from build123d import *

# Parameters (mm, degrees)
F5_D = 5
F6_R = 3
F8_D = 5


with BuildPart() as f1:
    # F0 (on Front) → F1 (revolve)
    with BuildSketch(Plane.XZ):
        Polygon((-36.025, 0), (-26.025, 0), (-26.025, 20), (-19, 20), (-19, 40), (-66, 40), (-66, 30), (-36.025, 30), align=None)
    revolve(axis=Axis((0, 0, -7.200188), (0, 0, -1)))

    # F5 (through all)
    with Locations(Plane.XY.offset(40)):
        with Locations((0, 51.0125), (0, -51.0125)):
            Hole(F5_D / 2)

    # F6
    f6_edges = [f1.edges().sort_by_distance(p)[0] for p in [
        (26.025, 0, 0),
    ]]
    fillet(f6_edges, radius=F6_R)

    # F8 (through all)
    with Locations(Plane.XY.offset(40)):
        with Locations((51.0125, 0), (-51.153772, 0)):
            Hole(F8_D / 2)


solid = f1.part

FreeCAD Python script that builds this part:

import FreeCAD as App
import Part
import Sketcher
from FreeCAD import Vector


def edges_at(feature, points):
    """Names of the edges that pass closest to the given points."""
    edges = feature.Shape.Edges
    near = lambda p: min(range(len(edges)), key=lambda i: edges[i].distToShape(Part.Vertex(*p))[0])
    return sorted({f"Edge{near(p) + 1}" for p in points})


def add_polygon(sketch, points):
    """Adds a closed chain of lines whose ends are joined by coincident constraints."""
    first, n = sketch.GeometryCount, len(points)
    for a, b in zip(points, points[1:] + points[:1]):
        sketch.addGeometry(Part.LineSegment(App.Vector(*a, 0), App.Vector(*b, 0)), False)
    for i in range(n):
        sketch.addConstraint(Sketcher.Constraint("Coincident", first + i, 2, first + (i + 1) % n, 1))

doc = App.newDocument("Part")
body = doc.addObject("PartDesign::Body", "Body")

# Sketch on XZ plane
sketch1 = body.newObject("Sketcher::SketchObject", "Sketch")
sketch1.AttachmentSupport = (doc.getObject("XZ_Plane"), [""])
sketch1.MapMode = "FlatFace"
add_polygon(sketch1, [(-36, 0), (-26, 0), (-26, 20), (-19, 20), (-19, 40), (-66, 40), (-66, 30), (-36, 30)])  # lines 0-7
sketch1.addConstraint(Sketcher.Constraint("Horizontal", 0))
sketch1.addConstraint(Sketcher.Constraint("Vertical", 1))
sketch1.addConstraint(Sketcher.Constraint("Horizontal", 2))
sketch1.addConstraint(Sketcher.Constraint("Vertical", 3))
sketch1.addConstraint(Sketcher.Constraint("Horizontal", 4))
sketch1.addConstraint(Sketcher.Constraint("Vertical", 5))
sketch1.addConstraint(Sketcher.Constraint("Horizontal", 6))
sketch1.addConstraint(Sketcher.Constraint("Vertical", 7))
sketch1.addConstraint(Sketcher.Constraint("PointOnObject", 0, 2, -1))
sketch1.addConstraint(Sketcher.Constraint("Equal", 1, 3))
sketch1.addConstraint(Sketcher.Constraint("Equal", 0, 5))
sketch1.addConstraint(Sketcher.Constraint("DistanceX", 0, 1, 0, 2, 10.0))
sketch1.addConstraint(Sketcher.Constraint("DistanceX", 4, 2, 4, 1, 47.0))
sketch1.addConstraint(Sketcher.Constraint("DistanceY", 1, 1, 1, 2, 20.0))
sketch1.addConstraint(Sketcher.Constraint("DistanceX", 2, 2, -1, 1, 19.0))
sketch1.addConstraint(Sketcher.Constraint("DistanceX", 2, 1, 2, 2, 7.025))
revolution = body.newObject("PartDesign::Revolution", "Revolution")
revolution.Profile = sketch1
revolution.ReferenceAxis = (sketch1, ["V_Axis"])
revolution.Angle = 360

# Sketch on XY plane
sketch2 = body.newObject("Sketcher::SketchObject", "Sketch001")
sketch2.AttachmentSupport = (doc.getObject("XY_Plane"), [""])
sketch2.MapMode = "FlatFace"
sketch2.AttachmentOffset = App.Placement(Vector(0, 0, 40), App.Rotation())
sketch2.addGeometry(Part.Circle(Vector(0, 51, 0), Vector(0, 0, 1), 2.5), False)
sketch2.addGeometry(Part.Circle(Vector(0, -51, 0), Vector(0, 0, 1), 2.5), False)
sketch2.addConstraint(Sketcher.Constraint("Equal", 0, 1))
sketch2.addConstraint(Sketcher.Constraint("Symmetric", 0, 3, 1, 3, -1, 1))
sketch2.addConstraint(Sketcher.Constraint("PointOnObject", 0, 3, -2))
sketch2.addConstraint(Sketcher.Constraint("Diameter", 0, 5.0))
sketch2.addConstraint(Sketcher.Constraint("DistanceY", 1, 3, 0, 3, 102.025))
doc.recompute()
hole = body.newObject("PartDesign::Hole", "Hole")
hole.Profile = sketch2
hole.ThreadType = "None"
hole.Diameter = 5
hole.DepthType = "ThroughAll"
doc.recompute()

fillet = body.newObject("PartDesign::Fillet", "Fillet")
fillet.Base = (hole, edges_at(hole, [(26.025, 0, 0)]))
fillet.Radius = 3

# Sketch on XY plane
sketch3 = body.newObject("Sketcher::SketchObject", "Sketch002")
sketch3.AttachmentSupport = (doc.getObject("XY_Plane"), [""])
sketch3.MapMode = "FlatFace"
sketch3.AttachmentOffset = App.Placement(Vector(0, 0, 40), App.Rotation())
sketch3.addGeometry(Part.Circle(Vector(51, 0, 0), Vector(0, 0, 1), 2.5), False)
sketch3.addGeometry(Part.Circle(Vector(-51.2, 0, 0), Vector(0, 0, 1), 2.5), False)
sketch3.addConstraint(Sketcher.Constraint("Equal", 0, 1))
sketch3.addConstraint(Sketcher.Constraint("PointOnObject", 0, 3, -1))
sketch3.addConstraint(Sketcher.Constraint("PointOnObject", 1, 3, -1))
sketch3.addConstraint(Sketcher.Constraint("Diameter", 0, 5.0))
sketch3.addConstraint(Sketcher.Constraint("DistanceX", -1, 1, 0, 3, 51.0125))
sketch3.addConstraint(Sketcher.Constraint("DistanceX", 1, 3, -1, 1, 51.153772))
doc.recompute()
hole2 = body.newObject("PartDesign::Hole", "Hole001")
hole2.Profile = sketch3
hole2.ThreadType = "None"
hole2.Diameter = 5
hole2.DepthType = "ThroughAll"

doc.recompute()
